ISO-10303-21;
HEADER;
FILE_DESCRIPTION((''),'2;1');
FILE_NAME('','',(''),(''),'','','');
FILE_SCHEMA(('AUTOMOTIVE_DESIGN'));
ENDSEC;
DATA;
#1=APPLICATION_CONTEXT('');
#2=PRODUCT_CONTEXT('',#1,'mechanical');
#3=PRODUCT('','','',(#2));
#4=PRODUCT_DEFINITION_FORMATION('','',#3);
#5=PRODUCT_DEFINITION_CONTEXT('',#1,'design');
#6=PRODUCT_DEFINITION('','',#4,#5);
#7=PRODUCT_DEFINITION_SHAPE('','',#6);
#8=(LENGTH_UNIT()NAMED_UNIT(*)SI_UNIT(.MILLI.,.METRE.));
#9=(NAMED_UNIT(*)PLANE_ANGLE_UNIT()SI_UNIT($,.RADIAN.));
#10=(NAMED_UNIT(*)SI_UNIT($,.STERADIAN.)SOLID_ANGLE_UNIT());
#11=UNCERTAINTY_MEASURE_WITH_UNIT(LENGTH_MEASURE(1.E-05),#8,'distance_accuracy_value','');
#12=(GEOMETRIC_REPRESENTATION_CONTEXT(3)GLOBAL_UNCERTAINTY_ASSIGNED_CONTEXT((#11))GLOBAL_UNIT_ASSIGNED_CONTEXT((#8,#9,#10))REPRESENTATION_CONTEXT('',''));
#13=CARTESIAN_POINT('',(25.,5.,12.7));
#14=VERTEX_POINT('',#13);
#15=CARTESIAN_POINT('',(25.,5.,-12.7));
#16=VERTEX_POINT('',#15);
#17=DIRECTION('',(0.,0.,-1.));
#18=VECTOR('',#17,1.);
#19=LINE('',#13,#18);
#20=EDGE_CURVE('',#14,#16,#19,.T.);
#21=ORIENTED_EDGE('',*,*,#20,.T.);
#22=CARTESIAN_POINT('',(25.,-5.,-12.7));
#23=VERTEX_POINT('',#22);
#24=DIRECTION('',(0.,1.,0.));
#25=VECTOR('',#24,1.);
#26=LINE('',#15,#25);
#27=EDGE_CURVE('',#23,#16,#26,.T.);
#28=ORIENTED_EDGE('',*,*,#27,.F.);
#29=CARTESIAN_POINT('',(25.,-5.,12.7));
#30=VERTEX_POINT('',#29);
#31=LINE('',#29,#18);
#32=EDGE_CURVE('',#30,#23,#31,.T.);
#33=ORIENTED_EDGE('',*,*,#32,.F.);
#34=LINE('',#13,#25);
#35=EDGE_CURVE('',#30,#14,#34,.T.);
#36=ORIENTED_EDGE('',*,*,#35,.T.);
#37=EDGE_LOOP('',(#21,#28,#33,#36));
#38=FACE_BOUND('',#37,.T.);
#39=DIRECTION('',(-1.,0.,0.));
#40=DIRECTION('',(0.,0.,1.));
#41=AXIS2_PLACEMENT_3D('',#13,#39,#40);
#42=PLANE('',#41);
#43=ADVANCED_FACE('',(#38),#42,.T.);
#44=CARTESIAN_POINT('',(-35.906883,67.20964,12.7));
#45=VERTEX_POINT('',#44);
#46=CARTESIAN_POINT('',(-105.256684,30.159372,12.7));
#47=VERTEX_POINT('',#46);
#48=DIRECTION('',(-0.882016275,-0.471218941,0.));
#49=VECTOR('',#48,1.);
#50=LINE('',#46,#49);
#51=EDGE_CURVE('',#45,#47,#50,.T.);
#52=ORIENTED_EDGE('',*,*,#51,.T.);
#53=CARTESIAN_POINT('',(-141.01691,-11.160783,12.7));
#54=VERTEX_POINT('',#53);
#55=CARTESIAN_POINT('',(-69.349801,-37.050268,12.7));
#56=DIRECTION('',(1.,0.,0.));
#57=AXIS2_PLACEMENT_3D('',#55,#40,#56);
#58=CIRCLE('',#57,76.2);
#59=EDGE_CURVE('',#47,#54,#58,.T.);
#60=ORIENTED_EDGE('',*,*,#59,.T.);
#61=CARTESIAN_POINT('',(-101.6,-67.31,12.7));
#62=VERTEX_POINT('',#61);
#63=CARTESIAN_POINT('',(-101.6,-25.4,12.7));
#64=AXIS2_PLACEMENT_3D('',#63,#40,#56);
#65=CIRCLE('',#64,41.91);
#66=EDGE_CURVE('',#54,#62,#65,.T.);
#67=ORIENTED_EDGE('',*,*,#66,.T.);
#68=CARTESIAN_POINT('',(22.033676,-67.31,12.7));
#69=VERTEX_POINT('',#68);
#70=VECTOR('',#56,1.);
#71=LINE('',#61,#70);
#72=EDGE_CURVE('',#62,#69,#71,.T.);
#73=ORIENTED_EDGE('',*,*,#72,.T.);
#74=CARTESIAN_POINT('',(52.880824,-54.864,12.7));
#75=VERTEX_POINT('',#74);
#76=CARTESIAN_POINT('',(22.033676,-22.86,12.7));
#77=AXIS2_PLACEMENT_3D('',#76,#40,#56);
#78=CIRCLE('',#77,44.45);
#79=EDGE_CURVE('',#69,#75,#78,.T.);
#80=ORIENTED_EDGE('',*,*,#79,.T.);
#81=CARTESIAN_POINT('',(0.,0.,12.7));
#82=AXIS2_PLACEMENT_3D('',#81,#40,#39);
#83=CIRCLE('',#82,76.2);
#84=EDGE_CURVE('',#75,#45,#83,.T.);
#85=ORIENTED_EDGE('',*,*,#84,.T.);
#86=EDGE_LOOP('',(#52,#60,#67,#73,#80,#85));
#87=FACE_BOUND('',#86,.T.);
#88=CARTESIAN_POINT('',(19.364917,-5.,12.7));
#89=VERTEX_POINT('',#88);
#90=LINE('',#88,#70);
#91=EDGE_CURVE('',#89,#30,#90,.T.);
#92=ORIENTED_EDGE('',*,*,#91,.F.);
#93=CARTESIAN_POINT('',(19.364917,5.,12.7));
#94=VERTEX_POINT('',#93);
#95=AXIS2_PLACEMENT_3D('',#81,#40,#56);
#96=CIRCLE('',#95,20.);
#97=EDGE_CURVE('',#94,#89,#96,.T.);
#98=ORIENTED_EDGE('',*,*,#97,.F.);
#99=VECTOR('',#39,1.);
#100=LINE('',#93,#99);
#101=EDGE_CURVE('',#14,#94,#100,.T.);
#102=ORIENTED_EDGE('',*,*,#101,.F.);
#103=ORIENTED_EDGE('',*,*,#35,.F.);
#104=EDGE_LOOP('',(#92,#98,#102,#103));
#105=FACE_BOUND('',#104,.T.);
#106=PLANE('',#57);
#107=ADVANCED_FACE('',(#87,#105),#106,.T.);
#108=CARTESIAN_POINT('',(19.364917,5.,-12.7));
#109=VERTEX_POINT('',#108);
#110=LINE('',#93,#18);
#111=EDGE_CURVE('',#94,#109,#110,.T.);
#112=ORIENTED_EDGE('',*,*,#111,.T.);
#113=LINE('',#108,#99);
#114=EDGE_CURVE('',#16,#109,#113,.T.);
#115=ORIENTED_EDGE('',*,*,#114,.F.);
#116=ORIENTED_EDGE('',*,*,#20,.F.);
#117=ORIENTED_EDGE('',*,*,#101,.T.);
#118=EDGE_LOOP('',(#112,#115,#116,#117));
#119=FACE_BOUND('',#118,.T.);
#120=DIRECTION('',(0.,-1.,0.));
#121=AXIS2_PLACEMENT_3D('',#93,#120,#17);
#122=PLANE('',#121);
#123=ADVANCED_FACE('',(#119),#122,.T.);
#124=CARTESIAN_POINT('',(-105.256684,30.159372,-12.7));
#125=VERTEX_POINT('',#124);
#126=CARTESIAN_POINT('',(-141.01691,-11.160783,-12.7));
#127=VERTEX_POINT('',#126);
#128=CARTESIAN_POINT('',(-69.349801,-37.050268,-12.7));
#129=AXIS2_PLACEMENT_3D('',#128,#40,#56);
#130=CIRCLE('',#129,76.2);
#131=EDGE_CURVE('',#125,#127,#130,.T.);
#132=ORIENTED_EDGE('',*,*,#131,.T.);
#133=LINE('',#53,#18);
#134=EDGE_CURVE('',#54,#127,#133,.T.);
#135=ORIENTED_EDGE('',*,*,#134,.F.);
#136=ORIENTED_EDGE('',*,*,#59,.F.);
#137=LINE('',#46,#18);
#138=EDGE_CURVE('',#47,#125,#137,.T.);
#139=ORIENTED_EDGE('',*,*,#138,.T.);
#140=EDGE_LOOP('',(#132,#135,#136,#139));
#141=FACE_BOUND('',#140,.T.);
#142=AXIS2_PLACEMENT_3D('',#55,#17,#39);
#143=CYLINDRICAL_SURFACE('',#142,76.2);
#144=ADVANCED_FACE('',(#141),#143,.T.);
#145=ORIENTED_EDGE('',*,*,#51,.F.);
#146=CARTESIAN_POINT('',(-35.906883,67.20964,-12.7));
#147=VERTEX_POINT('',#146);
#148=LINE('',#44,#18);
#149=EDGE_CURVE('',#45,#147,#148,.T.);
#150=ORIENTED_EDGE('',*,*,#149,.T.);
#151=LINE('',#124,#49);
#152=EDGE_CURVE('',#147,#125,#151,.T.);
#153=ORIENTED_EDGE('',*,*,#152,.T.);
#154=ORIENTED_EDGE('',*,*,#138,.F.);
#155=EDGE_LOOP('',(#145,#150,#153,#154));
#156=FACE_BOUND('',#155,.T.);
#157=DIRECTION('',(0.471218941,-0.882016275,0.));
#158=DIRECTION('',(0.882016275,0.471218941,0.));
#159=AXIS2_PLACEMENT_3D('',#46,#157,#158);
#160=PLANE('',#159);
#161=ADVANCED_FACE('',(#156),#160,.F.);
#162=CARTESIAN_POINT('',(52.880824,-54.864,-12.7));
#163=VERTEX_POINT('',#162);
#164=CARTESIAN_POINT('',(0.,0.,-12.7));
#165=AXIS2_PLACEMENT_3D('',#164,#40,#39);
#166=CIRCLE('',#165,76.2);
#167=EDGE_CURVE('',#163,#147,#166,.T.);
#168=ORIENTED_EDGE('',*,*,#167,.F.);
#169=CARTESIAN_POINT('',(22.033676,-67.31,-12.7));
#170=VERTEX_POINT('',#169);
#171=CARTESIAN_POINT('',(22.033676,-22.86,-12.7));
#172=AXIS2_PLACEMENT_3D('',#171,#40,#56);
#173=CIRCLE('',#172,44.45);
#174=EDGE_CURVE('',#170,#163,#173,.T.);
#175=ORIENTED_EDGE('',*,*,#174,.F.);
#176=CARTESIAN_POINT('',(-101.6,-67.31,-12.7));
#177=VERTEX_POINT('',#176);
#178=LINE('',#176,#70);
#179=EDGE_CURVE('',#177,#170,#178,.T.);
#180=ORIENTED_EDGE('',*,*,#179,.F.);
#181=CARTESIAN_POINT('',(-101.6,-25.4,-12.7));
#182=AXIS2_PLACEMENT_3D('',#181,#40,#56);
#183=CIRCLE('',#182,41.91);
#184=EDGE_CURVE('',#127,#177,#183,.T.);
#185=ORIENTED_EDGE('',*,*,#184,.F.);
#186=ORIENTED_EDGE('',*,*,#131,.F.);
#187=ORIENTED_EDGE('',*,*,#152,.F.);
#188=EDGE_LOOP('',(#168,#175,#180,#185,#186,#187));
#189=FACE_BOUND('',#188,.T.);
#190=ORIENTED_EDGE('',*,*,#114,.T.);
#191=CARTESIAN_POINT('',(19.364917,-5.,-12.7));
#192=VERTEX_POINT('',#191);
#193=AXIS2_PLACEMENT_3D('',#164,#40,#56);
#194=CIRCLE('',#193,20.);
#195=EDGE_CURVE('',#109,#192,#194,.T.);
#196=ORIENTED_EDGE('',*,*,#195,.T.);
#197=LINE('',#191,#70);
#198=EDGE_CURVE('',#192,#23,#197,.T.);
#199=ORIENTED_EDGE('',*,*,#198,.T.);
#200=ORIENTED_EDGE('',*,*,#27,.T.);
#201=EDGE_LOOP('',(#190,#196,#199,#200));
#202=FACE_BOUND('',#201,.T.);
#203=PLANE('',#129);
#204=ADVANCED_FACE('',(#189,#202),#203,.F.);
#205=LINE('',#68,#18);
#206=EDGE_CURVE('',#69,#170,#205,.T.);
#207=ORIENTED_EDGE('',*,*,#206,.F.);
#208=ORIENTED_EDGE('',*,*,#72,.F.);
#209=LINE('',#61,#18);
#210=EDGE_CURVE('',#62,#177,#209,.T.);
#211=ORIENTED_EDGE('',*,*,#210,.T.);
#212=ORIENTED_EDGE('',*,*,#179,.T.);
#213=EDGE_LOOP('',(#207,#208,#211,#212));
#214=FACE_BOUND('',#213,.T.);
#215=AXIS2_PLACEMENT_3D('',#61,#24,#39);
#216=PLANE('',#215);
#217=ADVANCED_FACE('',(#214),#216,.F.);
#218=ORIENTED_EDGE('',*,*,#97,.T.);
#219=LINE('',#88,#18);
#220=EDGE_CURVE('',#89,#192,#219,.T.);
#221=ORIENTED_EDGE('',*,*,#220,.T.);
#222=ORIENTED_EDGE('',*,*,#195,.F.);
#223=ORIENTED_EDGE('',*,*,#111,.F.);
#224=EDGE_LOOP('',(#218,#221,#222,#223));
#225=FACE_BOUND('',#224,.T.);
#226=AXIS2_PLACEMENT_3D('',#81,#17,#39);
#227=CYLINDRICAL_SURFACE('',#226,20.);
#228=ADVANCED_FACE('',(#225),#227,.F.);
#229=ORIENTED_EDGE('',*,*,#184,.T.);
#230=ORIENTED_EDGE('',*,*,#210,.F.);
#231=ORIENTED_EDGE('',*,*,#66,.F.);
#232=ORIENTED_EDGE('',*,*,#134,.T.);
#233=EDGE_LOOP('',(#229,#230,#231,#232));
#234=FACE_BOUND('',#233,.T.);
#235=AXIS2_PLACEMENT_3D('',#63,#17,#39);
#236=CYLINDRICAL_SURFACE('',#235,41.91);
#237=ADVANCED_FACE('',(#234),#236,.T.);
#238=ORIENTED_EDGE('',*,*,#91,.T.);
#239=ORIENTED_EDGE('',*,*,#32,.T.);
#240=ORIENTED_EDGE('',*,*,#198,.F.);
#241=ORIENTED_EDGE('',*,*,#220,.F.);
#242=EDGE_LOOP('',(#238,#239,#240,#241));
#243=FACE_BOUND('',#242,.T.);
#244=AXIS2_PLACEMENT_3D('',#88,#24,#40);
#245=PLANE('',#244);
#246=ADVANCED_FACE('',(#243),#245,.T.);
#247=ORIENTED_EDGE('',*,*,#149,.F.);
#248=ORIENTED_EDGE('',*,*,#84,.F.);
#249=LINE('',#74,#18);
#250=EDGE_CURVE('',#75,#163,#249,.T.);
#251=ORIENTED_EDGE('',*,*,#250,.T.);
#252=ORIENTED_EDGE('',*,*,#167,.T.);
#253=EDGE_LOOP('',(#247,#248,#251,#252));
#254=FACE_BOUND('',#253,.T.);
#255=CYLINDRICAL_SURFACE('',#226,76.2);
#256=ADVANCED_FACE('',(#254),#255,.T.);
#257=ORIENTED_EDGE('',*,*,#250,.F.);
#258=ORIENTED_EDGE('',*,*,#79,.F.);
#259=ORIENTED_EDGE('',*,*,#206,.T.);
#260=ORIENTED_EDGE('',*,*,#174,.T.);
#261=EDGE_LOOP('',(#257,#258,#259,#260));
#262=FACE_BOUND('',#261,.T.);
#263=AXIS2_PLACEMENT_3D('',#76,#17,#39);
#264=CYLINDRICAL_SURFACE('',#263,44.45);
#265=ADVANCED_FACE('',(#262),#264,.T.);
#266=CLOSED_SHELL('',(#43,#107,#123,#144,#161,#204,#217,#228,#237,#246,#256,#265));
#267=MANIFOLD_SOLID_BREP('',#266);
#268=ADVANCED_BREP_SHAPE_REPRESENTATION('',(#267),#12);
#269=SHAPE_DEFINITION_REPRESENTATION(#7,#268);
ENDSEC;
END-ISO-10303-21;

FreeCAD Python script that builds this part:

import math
import FreeCAD as App
import Part
import Sketcher

V = App.Vector
Q = App.Units.Quantity

doc = App.newDocument("Part")
params = doc.addObject("Spreadsheet::Sheet", "Params")
for row, (alias, value) in enumerate([
    ("sketch1_radius", "3 in"),
    ("sketch1_radius2", "1.65 in"),
    ("sketch1_radius3", "1.75 in"),
    ("pad1_length", "1 in"),
], start=1):
    params.set(f"A{row}", alias)
    params.set(f"B{row}", "=" + value)
    params.setAlias(f"B{row}", alias)

body = doc.addObject("PartDesign::Body", "Body")

# Sketch on XY plane
sketch1 = body.newObject("Sketcher::SketchObject", "Sketch")
sketch1.AttachmentSupport = (doc.getObject("XY_Plane"), [""])
sketch1.MapMode = "FlatFace"
sketch1.addGeometry([
    Part.LineSegment(V(-35.906883, 67.20964, 0), V(-105.256684, 30.159372, 0)),  # 0
    Part.ArcOfCircle(Part.Circle(V(-69.349801, -37.050268, 0), V(0, 0, 1), 76.2), math.radians(118.11345), math.radians(160.137929)),  # 1
    Part.ArcOfCircle(Part.Circle(V(-101.6, -25.4, 0), V(0, 0, 1), 41.91), math.radians(160.137929), math.radians(270)),  # 2
    Part.LineSegment(V(-101.6, -67.31, 0), V(22.033676, -67.31, 0)),  # 3
    Part.ArcOfCircle(Part.Circle(V(22.033676, -22.86, 0), V(0, 0, 1), 44.45), math.radians(-90), math.radians(-46.05448)),  # 4
    Part.ArcOfCircle(Part.Circle(V(0, 0, 0), V(0, 0, 1), 76.2), math.radians(-46.05448), math.radians(110.722861)),  # 5
    Part.ArcOfCircle(Part.Circle(V(0, 0, 0), V(0, 0, 1), 76.2), math.radians(110.722861), math.radians(118.11345)),  # 6
    Part.LineSegment(V(19.364917, 5, 0), V(25, 5, 0)),  # 7
    Part.LineSegment(V(25, 5, 0), V(25, -5, 0)),  # 8
    Part.LineSegment(V(25, -5, 0), V(19.364917, -5, 0)),  # 9
    Part.ArcOfCircle(Part.Circle(V(0, 0, 0), V(0, 0, 1), 20), math.radians(14.477512), math.radians(345.522488)),  # 10
], False)
sketch1.addConstraint([
    Sketcher.Constraint("Tangent", 0, 2, 1, 1),
    Sketcher.Constraint("Tangent", 1, 2, 2, 1),
    Sketcher.Constraint("Tangent", 2, 2, 3, 1),
    Sketcher.Constraint("Tangent", 3, 2, 4, 1),
    Sketcher.Constraint("Tangent", 4, 2, 5, 1),
    Sketcher.Constraint("Tangent", 5, 2, 6, 1),
    Sketcher.Constraint("Tangent", 6, 2, 0, 1),
    Sketcher.Constraint("Coincident", 7, 2, 8, 1),
    Sketcher.Constraint("Coincident", 8, 2, 9, 1),
    Sketcher.Constraint("Coincident", 9, 2, 10, 2),
    Sketcher.Constraint("Coincident", 10, 1, 7, 1),
    Sketcher.Constraint("Horizontal", 3),
    Sketcher.Constraint("Horizontal", 7),
    Sketcher.Constraint("Vertical", 8),
    Sketcher.Constraint("Horizontal", 9),
    Sketcher.Constraint("Coincident", 5, 3, -1, 1),
    Sketcher.Constraint("Coincident", 10, 3, -1, 1),
    Sketcher.Constraint("Equal", 1, 5),
    Sketcher.Constraint("Equal", 5, 6),
    Sketcher.Constraint("Vertical", 9, 2, 10, 1),
    Sketcher.Constraint("Radius", 1, Q("3 in")),
    Sketcher.Constraint("Radius", 2, Q("1.65 in")),
    Sketcher.Constraint("Radius", 4, Q("1.75 in")),
    Sketcher.Constraint("DistanceX", 2, 3, -1, 1, Q("4 in")),
    Sketcher.Constraint("DistanceY", 2, 3, -1, 1, Q("1 in")),
    Sketcher.Constraint("Radius", 10, Q("20 mm")),
    Sketcher.Constraint("DistanceY", 8, 2, 8, 1, Q("10 mm")),
    Sketcher.Constraint("DistanceX", 1, 3, -1, 1, Q("69.349801 mm")),
    Sketcher.Constraint("DistanceX", -1, 1, 7, 2, Q("25 mm")),
    Sketcher.Constraint("DistanceX", 5, 2, 4, 3, Q("48.996899 mm")),
])
sketch1.setExpression("Constraints[20]", "Params.sketch1_radius")
sketch1.setExpression("Constraints[21]", "Params.sketch1_radius2")
sketch1.setExpression("Constraints[22]", "Params.sketch1_radius3")
pad1 = body.newObject("PartDesign::Pad", "Pad")
pad1.Profile = sketch1
pad1.setExpression("Length", "Params.pad1_length")
pad1.Midplane = True

doc.recompute()
